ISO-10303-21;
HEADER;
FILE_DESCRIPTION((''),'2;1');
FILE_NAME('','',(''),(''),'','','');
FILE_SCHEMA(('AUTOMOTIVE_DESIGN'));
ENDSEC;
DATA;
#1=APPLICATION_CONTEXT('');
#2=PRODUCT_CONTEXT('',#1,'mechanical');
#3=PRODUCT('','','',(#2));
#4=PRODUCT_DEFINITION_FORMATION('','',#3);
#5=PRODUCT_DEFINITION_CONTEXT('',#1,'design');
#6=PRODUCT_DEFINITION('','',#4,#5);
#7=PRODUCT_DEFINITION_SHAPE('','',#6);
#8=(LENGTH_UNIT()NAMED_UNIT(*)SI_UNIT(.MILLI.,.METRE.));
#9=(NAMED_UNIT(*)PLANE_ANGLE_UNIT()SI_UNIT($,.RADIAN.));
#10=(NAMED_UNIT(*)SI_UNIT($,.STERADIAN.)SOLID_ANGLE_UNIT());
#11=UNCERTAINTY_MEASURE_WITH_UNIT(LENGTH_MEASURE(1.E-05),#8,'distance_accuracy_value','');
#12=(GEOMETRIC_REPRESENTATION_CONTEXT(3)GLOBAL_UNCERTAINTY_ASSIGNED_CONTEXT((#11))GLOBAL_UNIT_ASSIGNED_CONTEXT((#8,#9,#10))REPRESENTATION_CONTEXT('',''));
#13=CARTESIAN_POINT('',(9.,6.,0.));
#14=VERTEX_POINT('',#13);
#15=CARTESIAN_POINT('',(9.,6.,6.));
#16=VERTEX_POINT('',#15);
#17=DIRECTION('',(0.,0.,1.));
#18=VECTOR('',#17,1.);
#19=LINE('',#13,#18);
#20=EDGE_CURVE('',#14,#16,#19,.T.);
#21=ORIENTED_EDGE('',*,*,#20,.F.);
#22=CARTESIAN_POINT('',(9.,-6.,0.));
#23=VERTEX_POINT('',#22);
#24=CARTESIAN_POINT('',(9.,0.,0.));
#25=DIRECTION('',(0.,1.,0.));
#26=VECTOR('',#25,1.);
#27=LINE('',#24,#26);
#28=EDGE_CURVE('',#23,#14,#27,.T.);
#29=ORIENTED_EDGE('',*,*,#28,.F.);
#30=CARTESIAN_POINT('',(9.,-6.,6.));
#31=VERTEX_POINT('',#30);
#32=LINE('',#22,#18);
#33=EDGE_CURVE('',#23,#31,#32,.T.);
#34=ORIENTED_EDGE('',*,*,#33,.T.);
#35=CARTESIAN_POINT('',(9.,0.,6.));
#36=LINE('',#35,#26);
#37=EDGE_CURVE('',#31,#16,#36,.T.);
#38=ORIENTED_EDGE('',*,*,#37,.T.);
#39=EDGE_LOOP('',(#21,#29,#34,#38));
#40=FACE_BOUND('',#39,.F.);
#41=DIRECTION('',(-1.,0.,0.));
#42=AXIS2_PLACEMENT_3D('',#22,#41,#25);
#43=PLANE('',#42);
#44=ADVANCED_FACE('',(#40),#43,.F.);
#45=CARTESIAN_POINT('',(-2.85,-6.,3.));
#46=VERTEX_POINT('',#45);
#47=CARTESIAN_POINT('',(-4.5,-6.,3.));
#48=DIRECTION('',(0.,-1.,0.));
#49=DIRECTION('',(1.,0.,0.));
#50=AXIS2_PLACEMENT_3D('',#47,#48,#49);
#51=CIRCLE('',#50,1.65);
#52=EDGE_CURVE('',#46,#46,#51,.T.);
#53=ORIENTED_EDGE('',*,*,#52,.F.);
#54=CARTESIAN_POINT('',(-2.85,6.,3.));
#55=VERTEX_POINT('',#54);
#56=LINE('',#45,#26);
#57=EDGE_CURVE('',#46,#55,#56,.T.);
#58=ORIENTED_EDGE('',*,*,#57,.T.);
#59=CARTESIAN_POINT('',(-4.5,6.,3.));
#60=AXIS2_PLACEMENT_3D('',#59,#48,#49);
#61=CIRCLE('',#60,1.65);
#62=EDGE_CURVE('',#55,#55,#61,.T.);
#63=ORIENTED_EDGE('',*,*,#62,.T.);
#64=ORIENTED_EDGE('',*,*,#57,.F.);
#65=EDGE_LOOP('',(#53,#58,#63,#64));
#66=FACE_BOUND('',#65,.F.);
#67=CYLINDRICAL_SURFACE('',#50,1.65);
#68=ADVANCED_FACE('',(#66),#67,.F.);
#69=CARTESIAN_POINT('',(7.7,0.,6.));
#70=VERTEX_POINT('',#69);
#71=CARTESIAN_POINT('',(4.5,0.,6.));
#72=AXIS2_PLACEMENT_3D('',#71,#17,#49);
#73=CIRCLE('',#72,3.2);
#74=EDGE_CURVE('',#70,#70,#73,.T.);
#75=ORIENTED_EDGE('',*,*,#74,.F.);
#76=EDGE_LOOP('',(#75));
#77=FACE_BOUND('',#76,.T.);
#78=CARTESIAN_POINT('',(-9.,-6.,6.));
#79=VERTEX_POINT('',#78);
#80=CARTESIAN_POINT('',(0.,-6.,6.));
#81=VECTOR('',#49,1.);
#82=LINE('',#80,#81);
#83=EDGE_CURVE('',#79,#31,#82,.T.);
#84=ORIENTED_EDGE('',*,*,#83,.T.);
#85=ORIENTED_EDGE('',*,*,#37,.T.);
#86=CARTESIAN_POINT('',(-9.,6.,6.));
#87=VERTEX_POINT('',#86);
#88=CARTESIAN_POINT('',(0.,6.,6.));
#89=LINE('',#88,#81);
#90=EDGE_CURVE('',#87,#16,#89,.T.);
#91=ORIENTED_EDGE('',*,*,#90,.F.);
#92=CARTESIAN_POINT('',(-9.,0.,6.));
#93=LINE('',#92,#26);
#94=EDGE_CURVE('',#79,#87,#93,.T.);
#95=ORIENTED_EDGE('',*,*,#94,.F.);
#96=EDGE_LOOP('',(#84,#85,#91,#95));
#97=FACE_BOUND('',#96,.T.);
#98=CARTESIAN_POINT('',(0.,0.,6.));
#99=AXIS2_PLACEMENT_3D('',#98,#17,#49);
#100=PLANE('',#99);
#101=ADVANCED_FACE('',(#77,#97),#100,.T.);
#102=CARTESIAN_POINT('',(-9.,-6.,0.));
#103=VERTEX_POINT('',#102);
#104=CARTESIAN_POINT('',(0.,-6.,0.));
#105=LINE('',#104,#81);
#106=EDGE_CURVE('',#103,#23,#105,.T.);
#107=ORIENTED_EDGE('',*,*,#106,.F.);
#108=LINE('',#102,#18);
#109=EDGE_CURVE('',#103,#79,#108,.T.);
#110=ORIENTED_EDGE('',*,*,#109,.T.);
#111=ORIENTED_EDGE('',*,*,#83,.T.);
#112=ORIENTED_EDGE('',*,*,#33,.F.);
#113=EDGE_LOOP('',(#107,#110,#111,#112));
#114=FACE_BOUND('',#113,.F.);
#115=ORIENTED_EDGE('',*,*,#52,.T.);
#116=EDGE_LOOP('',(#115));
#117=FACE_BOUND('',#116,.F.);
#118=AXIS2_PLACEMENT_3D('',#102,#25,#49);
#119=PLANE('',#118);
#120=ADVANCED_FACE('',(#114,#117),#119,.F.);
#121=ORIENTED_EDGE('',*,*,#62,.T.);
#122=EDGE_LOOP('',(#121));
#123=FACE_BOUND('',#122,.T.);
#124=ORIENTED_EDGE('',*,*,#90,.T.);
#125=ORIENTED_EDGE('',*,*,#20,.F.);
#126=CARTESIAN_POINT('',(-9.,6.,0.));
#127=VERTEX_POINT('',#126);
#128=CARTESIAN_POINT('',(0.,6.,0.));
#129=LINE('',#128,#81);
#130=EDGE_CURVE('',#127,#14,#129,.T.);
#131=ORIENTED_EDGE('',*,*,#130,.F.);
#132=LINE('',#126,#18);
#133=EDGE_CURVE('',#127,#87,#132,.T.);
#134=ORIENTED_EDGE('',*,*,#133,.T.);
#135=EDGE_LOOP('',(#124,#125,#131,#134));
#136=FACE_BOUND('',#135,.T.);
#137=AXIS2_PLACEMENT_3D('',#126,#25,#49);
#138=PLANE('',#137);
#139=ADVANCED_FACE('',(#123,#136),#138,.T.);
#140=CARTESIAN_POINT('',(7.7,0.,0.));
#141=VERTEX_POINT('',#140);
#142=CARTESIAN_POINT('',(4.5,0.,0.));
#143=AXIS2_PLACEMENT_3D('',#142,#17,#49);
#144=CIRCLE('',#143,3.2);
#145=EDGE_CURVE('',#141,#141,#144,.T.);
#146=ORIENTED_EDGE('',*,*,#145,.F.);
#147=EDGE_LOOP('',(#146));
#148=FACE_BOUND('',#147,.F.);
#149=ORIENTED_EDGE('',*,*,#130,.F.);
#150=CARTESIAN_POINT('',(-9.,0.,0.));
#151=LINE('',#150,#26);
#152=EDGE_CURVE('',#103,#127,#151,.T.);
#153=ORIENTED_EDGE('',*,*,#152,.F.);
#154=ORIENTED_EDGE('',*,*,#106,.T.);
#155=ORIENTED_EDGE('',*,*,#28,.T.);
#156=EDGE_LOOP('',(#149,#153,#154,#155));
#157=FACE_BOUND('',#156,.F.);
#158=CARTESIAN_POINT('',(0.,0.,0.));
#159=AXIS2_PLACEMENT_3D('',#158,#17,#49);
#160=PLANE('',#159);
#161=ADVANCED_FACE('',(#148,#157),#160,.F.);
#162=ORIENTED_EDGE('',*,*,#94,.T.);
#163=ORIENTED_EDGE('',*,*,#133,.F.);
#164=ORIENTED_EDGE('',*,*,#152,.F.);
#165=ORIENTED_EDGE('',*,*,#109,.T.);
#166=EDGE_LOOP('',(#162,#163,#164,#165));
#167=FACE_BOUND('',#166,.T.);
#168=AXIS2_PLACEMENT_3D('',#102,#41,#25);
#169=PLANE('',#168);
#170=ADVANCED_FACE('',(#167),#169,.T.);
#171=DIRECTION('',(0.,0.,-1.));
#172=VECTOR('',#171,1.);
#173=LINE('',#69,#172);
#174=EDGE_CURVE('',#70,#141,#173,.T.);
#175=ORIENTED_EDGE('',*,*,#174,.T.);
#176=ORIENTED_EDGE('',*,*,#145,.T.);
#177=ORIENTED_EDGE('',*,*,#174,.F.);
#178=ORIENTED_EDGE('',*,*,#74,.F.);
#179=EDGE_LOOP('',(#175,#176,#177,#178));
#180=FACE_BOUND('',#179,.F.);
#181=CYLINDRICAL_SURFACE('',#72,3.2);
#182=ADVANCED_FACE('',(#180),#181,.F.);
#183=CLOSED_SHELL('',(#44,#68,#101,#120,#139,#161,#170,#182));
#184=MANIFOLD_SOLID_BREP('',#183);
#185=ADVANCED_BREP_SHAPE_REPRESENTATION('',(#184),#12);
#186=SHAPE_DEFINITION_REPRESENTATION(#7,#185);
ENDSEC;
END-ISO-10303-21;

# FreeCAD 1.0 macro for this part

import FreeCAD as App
import Part
import Sketcher

V = App.Vector
Q = App.Units.Quantity


def add_polygon(sketch, points):
    """Adds a closed chain of lines whose ends are joined by coincident constraints."""
    first, n = sketch.GeometryCount, len(points)
    for a, b in zip(points, points[1:] + points[:1]):
        sketch.addGeometry(Part.LineSegment(App.Vector(*a, 0), App.Vector(*b, 0)), False)
    for i in range(n):
        sketch.addConstraint(Sketcher.Constraint("Coincident", first + i, 2, first + (i + 1) % n, 1))

doc = App.newDocument("Part")
body = doc.addObject("PartDesign::Body", "Body")

# Sketch on XY plane
sketch1 = doc.addObject("Sketcher::SketchObject", "Sketch")
body.addObject(sketch1)
sketch1.AttachmentSupport = (doc.XY_Plane, [""])
sketch1.MapMode = "FlatFace"
add_polygon(sketch1, [(-9, 6), (-9, -6), (9, -6), (9, 6)])  # lines 0-3
sketch1.addConstraint([
    Sketcher.Constraint("Vertical", 0),
    Sketcher.Constraint("Horizontal", 1),
    Sketcher.Constraint("Vertical", 2),
    Sketcher.Constraint("Horizontal", 3),
    Sketcher.Constraint("Symmetric", 0, 2, 2, 2, -1, 1),
    Sketcher.Constraint("DistanceX", 1, 1, 1, 2, Q("18 mm")),
    Sketcher.Constraint("DistanceY", 0, 2, 0, 1, Q("12 mm")),
])
pad1 = doc.addObject("PartDesign::Pad", "Pad")
body.addObject(pad1)
pad1.Profile = sketch1
pad1.Length = 6

# Sketch on XZ plane
sketch2 = doc.addObject("Sketcher::SketchObject", "Sketch001")
body.addObject(sketch2)
sketch2.AttachmentSupport = (doc.XZ_Plane, [""])
sketch2.MapMode = "FlatFace"
sketch2.AttachmentOffset = App.Placement(V(0, 0, 6), App.Rotation())
sketch2.addGeometry(Part.Circle(V(-4.5, 3, 0), V(0, 0, 1), 1.65), False)
sketch2.addConstraint([
    Sketcher.Constraint("Diameter", 0, Q("3.3 mm")),
    Sketcher.Constraint("DistanceY", -1, 1, 0, 3, Q("3 mm")),
    Sketcher.Constraint("DistanceX", 0, 3, -1, 1, Q("4.5 mm")),
])
pocket1 = doc.addObject("PartDesign::Pocket", "Pocket")
body.addObject(pocket1)
pocket1.Profile = sketch2
pocket1.Length = 25

# Sketch on XY plane
sketch3 = doc.addObject("Sketcher::SketchObject", "Sketch002")
body.addObject(sketch3)
sketch3.AttachmentSupport = (doc.XY_Plane, [""])
sketch3.MapMode = "FlatFace"
sketch3.AttachmentOffset = App.Placement(V(0, 0, 6), App.Rotation())
sketch3.addGeometry(Part.Circle(V(4.5, 0, 0), V(0, 0, 1), 3.2), False)
sketch3.addConstraint([
    Sketcher.Constraint("PointOnObject", 0, 3, -1),
    Sketcher.Constraint("Diameter", 0, Q("6.4 mm")),
    Sketcher.Constraint("DistanceX", -1, 1, 0, 3, Q("4.5 mm")),
])
pocket2 = doc.addObject("PartDesign::Pocket", "Pocket001")
body.addObject(pocket2)
pocket2.Profile = sketch3
pocket2.Length = 25

doc.recompute()
